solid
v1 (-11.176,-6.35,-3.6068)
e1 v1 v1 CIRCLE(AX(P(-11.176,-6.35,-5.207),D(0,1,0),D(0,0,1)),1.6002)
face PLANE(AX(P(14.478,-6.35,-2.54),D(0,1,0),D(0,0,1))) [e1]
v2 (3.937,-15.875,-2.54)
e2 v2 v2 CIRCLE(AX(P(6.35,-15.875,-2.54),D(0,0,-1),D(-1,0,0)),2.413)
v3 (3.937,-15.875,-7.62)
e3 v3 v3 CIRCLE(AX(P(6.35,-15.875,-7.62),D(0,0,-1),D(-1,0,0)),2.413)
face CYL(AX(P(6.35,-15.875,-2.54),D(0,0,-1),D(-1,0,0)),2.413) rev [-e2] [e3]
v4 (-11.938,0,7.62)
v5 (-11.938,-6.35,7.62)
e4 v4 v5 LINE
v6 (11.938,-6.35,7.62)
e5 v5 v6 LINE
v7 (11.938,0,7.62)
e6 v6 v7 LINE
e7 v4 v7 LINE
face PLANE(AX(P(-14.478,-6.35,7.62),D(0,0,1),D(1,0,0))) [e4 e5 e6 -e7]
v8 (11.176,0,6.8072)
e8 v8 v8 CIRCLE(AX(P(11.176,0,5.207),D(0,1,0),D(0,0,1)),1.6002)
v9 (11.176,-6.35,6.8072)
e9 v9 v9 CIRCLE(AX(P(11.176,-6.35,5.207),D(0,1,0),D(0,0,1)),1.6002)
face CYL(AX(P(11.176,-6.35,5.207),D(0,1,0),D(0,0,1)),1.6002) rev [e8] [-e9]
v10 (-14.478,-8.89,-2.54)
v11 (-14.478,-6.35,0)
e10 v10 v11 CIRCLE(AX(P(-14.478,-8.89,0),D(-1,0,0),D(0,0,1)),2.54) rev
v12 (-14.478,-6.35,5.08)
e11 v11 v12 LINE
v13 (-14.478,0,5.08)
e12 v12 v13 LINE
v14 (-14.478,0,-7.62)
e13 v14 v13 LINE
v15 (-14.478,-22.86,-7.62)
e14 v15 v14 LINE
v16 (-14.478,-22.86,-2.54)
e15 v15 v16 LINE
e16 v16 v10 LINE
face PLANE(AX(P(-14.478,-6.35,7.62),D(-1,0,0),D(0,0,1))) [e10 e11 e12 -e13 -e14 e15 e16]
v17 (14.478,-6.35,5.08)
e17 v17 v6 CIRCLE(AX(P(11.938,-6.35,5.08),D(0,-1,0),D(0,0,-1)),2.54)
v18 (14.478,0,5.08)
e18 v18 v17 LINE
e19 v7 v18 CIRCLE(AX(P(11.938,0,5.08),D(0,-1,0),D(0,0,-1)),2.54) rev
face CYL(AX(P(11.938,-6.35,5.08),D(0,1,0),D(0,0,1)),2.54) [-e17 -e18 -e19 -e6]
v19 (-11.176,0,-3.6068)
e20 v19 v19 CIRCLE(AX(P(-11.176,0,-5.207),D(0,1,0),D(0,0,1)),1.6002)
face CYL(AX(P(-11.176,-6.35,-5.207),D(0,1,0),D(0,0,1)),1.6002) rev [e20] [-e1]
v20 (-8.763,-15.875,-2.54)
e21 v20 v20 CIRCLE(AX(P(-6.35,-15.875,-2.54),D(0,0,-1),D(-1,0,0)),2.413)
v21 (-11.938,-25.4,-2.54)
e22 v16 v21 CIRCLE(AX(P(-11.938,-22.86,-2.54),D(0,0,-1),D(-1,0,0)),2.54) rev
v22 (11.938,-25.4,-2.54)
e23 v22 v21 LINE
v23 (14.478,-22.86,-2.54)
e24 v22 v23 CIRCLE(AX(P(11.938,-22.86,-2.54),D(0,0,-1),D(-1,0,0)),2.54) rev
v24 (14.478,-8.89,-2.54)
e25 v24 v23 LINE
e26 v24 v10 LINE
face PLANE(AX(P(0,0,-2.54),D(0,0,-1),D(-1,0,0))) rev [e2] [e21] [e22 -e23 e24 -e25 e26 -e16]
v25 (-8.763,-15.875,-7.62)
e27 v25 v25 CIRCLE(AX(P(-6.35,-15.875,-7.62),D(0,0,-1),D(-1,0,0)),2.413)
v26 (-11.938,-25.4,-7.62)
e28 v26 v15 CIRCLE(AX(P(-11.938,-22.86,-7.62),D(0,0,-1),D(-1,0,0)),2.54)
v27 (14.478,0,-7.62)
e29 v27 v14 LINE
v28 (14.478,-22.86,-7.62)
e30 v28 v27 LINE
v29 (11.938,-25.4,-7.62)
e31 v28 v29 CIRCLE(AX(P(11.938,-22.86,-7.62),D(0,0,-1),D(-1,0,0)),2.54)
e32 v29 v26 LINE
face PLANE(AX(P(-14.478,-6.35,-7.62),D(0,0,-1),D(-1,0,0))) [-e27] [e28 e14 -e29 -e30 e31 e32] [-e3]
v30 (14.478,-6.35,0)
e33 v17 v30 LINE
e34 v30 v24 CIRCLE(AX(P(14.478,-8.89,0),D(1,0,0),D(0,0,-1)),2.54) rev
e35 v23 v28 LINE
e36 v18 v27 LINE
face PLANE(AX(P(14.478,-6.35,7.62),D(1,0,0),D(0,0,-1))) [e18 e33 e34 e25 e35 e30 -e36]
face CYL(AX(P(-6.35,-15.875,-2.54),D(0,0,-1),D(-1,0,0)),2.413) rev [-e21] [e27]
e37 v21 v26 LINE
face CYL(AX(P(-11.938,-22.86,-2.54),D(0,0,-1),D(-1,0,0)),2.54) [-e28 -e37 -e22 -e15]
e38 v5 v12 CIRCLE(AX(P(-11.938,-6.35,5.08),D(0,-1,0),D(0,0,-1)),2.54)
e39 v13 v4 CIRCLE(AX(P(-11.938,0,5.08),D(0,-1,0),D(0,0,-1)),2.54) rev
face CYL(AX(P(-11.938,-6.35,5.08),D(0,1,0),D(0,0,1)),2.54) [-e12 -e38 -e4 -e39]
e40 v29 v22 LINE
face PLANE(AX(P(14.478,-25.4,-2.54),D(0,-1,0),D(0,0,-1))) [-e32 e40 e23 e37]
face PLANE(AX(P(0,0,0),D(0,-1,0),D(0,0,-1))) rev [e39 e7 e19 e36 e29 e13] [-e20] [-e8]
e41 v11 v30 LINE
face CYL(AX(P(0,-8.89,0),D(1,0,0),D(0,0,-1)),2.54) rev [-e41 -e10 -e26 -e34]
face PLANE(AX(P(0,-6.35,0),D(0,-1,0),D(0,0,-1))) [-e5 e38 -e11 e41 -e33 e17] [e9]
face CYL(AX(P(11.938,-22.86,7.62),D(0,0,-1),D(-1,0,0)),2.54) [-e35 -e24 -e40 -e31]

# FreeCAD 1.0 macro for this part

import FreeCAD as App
import Part
import Sketcher

V = App.Vector
Q = App.Units.Quantity


def edges_at(feature, points):
    """Names of the edges that pass closest to the given points."""
    edges = feature.Shape.Edges
    near = lambda p: min(range(len(edges)), key=lambda i: edges[i].distToShape(Part.Vertex(*p))[0])
    return sorted({f"Edge{near(p) + 1}" for p in points})

doc = App.newDocument("Part")
params = doc.addObject("Spreadsheet::Sheet", "Params")
for row, (alias, value) in enumerate([
    ("sketch1_diameter", "0.126 in"),
    ("sketch1_height", "0.6 in"),
    ("sketch1_width", "1.14 in"),
    ("pad1_length", "0.25 in"),
    ("sketch2_diameter", "0.19 in"),
    ("sketch2_width", "1.14 in"),
    ("sketch2_height", "0.75 in"),
    ("pad2_length", "0.2 in"),
    ("fillet_radius", "0.1 in"),
], start=1):
    params.set(f"A{row}", alias)
    params.set(f"B{row}", "=" + value)
    params.setAlias(f"B{row}", alias)

body = doc.addObject("PartDesign::Body", "Body")

# Sketch on XZ plane
sketch1 = body.newObject("Sketcher::SketchObject", "Sketch")
sketch1.AttachmentSupport = (doc.getObject("XZ_Plane"), [""])
sketch1.MapMode = "FlatFace"
sketch1.addGeometry([
    Part.LineSegment(V(-14.478, -7.62, 0), V(-14.478, 7.62, 0)),  # 0
    Part.LineSegment(V(-14.478, 7.62, 0), V(14.478, 7.62, 0)),  # 1
    Part.LineSegment(V(14.478, 7.62, 0), V(14.478, -7.62, 0)),  # 2
    Part.LineSegment(V(14.478, -7.62, 0), V(-14.478, -7.62, 0)),  # 3
    Part.Circle(V(11.176, 5.207, 0), V(0, 0, 1), 1.6002),  # 4
    Part.Circle(V(-11.176, -5.207, 0), V(0, 0, 1), 1.6002),  # 5
], False)
sketch1.addConstraint([
    Sketcher.Constraint("Coincident", 0, 2, 1, 1),
    Sketcher.Constraint("Coincident", 1, 2, 2, 1),
    Sketcher.Constraint("Coincident", 2, 2, 3, 1),
    Sketcher.Constraint("Coincident", 3, 2, 0, 1),
    Sketcher.Constraint("Vertical", 0),
    Sketcher.Constraint("Horizontal", 1),
    Sketcher.Constraint("Vertical", 2),
    Sketcher.Constraint("Horizontal", 3),
    Sketcher.Constraint("Equal", 4, 5),
    Sketcher.Constraint("Symmetric", 4, 3, 5, 3, -1, 1),
    Sketcher.Constraint("Symmetric", 0, 2, 2, 2, -1, 1),
    Sketcher.Constraint("Diameter", 4, Q("0.126 in")),
    Sketcher.Constraint("DistanceY", 0, 1, 0, 2, Q("0.6 in")),
    Sketcher.Constraint("DistanceX", 1, 1, 1, 2, Q("1.14 in")),
    Sketcher.Constraint("DistanceX", -1, 1, 4, 3, Q("0.44 in")),
    Sketcher.Constraint("DistanceY", 5, 3, 4, 3, Q("0.41 in")),
])
sketch1.setExpression("Constraints[11]", "Params.sketch1_diameter")
sketch1.setExpression("Constraints[12]", "Params.sketch1_height")
sketch1.setExpression("Constraints[13]", "Params.sketch1_width")
pad1 = body.newObject("PartDesign::Pad", "Pad")
pad1.Profile = sketch1
pad1.setExpression("Length", "Params.pad1_length")

# Sketch on XY plane
sketch2 = body.newObject("Sketcher::SketchObject", "Sketch001")
sketch2.AttachmentSupport = (doc.getObject("XY_Plane"), [""])
sketch2.MapMode = "FlatFace"
sketch2.AttachmentOffset = App.Placement(V(0, 0, -0.3 * 25.4), App.Rotation())
sketch2.addGeometry([
    Part.LineSegment(V(14.478, -6.35, 0), V(14.478, -25.4, 0)),  # 0
    Part.LineSegment(V(14.478, -25.4, 0), V(-14.478, -25.4, 0)),  # 1
    Part.LineSegment(V(-14.478, -25.4, 0), V(-14.478, -6.35, 0)),  # 2
    Part.LineSegment(V(-14.478, -6.35, 0), V(14.478, -6.35, 0)),  # 3
    Part.Circle(V(6.35, -15.875, 0), V(0, 0, 1), 2.413),  # 4
    Part.Circle(V(-6.35, -15.875, 0), V(0, 0, 1), 2.413),  # 5
], False)
sketch2.addConstraint([
    Sketcher.Constraint("Coincident", 0, 2, 1, 1),
    Sketcher.Constraint("Coincident", 1, 2, 2, 1),
    Sketcher.Constraint("Coincident", 2, 2, 3, 1),
    Sketcher.Constraint("Coincident", 3, 2, 0, 1),
    Sketcher.Constraint("Vertical", 0),
    Sketcher.Constraint("Horizontal", 1),
    Sketcher.Constraint("Vertical", 2),
    Sketcher.Constraint("Horizontal", 3),
    Sketcher.Constraint("Equal", 4, 5),
    Sketcher.Constraint("Symmetric", 4, 3, 5, 3, -2),
    Sketcher.Constraint("Diameter", 4, Q("0.19 in")),
    Sketcher.Constraint("DistanceY", 0, 2, -1, 1, Q("1 in")),
    Sketcher.Constraint("DistanceX", 1, 2, 1, 1, Q("1.14 in")),
    Sketcher.Constraint("DistanceY", 0, 2, 0, 1, Q("0.75 in")),
    Sketcher.Constraint("DistanceX", 5, 3, 4, 3, Q("0.5 in")),
    Sketcher.Constraint("DistanceX", -1, 1, 0, 2, Q("0.57 in")),
    Sketcher.Constraint("DistanceY", 4, 3, -1, 1, Q("0.625 in")),
])
sketch2.setExpression("Constraints[10]", "Params.sketch2_diameter")
sketch2.setExpression("Constraints[12]", "Params.sketch2_width")
sketch2.setExpression("Constraints[13]", "Params.sketch2_height")
pad2 = body.newObject("PartDesign::Pad", "Pad001")
pad2.Profile = sketch2
pad2.setExpression("Length", "Params.pad2_length")
doc.recompute()

fillet = body.newObject("PartDesign::Fillet", "Fillet")
fillet.Base = (pad2, edges_at(pad2, [
    (0, -6.35, -2.54),
    (14.478, -25.4, -5.08),
    (-14.478, -25.4, -5.08),
    (14.478, -3.175, 7.62),
    (-14.478, -3.175, 7.62),
]))
fillet.setExpression("Radius", "Params.fillet_radius")

doc.recompute()
